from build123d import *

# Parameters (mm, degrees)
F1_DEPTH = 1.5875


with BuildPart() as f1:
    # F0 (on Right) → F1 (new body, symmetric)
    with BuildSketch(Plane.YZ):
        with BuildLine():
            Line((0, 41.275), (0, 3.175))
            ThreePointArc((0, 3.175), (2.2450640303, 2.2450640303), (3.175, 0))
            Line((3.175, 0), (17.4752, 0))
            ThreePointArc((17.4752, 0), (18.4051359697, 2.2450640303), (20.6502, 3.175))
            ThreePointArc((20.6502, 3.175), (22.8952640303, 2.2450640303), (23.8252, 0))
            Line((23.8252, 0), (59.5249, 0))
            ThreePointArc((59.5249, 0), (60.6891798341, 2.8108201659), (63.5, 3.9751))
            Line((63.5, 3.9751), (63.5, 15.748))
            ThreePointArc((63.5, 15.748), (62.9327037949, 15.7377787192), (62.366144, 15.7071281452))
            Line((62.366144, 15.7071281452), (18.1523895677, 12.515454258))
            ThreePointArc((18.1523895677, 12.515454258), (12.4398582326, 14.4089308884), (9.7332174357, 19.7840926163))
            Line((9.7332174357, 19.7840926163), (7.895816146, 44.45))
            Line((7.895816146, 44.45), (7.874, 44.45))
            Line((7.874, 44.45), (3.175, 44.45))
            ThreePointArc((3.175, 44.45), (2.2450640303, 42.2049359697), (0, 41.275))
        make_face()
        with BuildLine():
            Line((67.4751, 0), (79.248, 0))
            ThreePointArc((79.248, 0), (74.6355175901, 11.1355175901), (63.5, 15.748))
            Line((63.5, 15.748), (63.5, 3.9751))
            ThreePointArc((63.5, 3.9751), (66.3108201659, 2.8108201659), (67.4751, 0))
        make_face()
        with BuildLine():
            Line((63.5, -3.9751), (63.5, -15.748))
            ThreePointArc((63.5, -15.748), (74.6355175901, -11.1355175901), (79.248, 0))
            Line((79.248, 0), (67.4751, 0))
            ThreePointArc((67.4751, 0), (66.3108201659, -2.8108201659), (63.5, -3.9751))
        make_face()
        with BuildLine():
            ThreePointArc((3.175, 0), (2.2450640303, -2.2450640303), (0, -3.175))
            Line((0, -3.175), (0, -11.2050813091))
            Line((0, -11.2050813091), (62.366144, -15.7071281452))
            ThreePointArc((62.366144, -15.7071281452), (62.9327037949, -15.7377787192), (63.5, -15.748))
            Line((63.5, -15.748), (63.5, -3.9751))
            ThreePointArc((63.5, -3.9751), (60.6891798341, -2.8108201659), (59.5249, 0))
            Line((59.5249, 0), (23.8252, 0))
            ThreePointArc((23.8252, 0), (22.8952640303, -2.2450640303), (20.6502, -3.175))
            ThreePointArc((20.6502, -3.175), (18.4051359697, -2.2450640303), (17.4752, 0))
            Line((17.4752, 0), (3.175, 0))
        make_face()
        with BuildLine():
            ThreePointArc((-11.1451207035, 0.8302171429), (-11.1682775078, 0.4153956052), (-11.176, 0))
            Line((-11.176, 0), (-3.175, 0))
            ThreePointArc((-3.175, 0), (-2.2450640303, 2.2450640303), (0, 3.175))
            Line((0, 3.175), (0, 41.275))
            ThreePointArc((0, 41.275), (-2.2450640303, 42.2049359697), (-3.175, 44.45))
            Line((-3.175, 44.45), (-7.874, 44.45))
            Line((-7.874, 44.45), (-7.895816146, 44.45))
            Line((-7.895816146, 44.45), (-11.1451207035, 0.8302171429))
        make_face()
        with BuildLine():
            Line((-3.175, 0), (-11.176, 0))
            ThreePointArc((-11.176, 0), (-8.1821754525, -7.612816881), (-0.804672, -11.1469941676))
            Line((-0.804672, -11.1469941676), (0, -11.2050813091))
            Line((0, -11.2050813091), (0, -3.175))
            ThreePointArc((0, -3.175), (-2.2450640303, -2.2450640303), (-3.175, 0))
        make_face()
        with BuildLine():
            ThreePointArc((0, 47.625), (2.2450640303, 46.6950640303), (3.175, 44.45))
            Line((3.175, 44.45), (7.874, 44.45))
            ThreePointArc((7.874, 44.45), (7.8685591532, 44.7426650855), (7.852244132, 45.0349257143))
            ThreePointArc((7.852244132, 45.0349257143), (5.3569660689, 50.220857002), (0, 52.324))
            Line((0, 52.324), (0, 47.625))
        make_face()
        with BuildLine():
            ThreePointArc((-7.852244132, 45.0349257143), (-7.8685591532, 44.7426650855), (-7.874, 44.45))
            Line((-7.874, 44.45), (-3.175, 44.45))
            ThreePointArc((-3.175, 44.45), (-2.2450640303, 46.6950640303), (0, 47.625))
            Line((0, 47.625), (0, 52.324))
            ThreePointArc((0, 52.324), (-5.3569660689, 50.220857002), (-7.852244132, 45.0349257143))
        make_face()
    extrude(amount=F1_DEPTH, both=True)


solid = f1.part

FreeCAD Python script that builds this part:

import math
import FreeCAD as App
import Part
import Sketcher
Q = App.Units.Quantity

doc = App.newDocument("Part")
params = doc.addObject("Spreadsheet::Sheet", "Params")
for row, (alias, value) in enumerate([
    ("sketch1_radius", "0.62 in"),
    ("sketch1_radius2", "0.31 in"),
    ("sketch1_radius3", "0.44 in"),
    ("sketch1_radius4", "0.125 in"),
    ("pad1_length", "0.125 in"),
], start=1):
    params.set(f"A{row}", alias)
    params.set(f"B{row}", "=" + value)
    params.setAlias(f"B{row}", alias)

body = doc.addObject("PartDesign::Body", "Body")

sketch1 = doc.addObject("Sketcher::SketchObject", "Sketch")
body.addObject(sketch1)
sketch1.AttachmentSupport = (doc.YZ_Plane, [""])
sketch1.MapMode = "FlatFace"
sketch1.addGeometry([
    Part.LineSegment(App.Vector(0, -11.205081, 0), App.Vector(62.366144, -15.707128, 0)),
    Part.ArcOfCircle(Part.Circle(App.Vector(63.5, 0, 0), App.Vector(0, 0, 1), 15.748), math.radians(-94.128869), math.radians(-90)),
    Part.ArcOfCircle(Part.Circle(App.Vector(63.5, 0, 0), App.Vector(0, 0, 1), 15.748), math.radians(-90), math.radians(0)),
    Part.ArcOfCircle(Part.Circle(App.Vector(63.5, 0, 0), App.Vector(0, 0, 1), 15.748), math.radians(0), math.radians(90)),
    Part.ArcOfCircle(Part.Circle(App.Vector(63.5, 0, 0), App.Vector(0, 0, 1), 15.748), math.radians(90), math.radians(94.128869)),
    Part.LineSegment(App.Vector(62.366144, 15.707128, 0), App.Vector(18.15239, 12.515454, 0)),
    Part.ArcOfCircle(Part.Circle(App.Vector(17.585462, 20.369018, 0), App.Vector(0, 0, 1), 7.874), math.radians(-175.739818), math.radians(-85.871131)),
    Part.LineSegment(App.Vector(9.733217, 19.784093, 0), App.Vector(7.895816, 44.45, 0)),
    Part.LineSegment(App.Vector(7.895816, 44.45, 0), App.Vector(7.874, 44.45, 0)),
    Part.ArcOfCircle(Part.Circle(App.Vector(0, 44.45, 0), App.Vector(0, 0, 1), 7.874), math.radians(0), math.radians(4.260182)),
    Part.ArcOfCircle(Part.Circle(App.Vector(0, 44.45, 0), App.Vector(0, 0, 1), 7.874), math.radians(4.260182), math.radians(90)),
    Part.ArcOfCircle(Part.Circle(App.Vector(0, 44.45, 0), App.Vector(0, 0, 1), 7.874), math.radians(90), math.radians(175.739818)),
    Part.ArcOfCircle(Part.Circle(App.Vector(0, 44.45, 0), App.Vector(0, 0, 1), 7.874), math.radians(175.739818), math.radians(180)),
    Part.LineSegment(App.Vector(-7.874, 44.45, 0), App.Vector(-7.895816, 44.45, 0)),
    Part.LineSegment(App.Vector(-7.895816, 44.45, 0), App.Vector(-11.145121, 0.830217, 0)),
    Part.ArcOfCircle(Part.Circle(App.Vector(0, 0, 0), App.Vector(0, 0, 1), 11.176), math.radians(175.739818), math.radians(180)),
    Part.ArcOfCircle(Part.Circle(App.Vector(0, 0, 0), App.Vector(0, 0, 1), 11.176), math.radians(180), math.radians(265.871131)),
    Part.LineSegment(App.Vector(-0.804672, -11.146994, 0), App.Vector(0, -11.205081, 0)),
    Part.ArcOfCircle(Part.Circle(App.Vector(0, 0, 0), App.Vector(0, 0, 1), 3.175), math.radians(0), math.radians(90)),
    Part.ArcOfCircle(Part.Circle(App.Vector(0, 0, 0), App.Vector(0, 0, 1), 3.175), math.radians(-90), math.radians(0)),
    Part.ArcOfCircle(Part.Circle(App.Vector(0, 0, 0), App.Vector(0, 0, 1), 3.175), math.radians(180), math.radians(270)),
    Part.ArcOfCircle(Part.Circle(App.Vector(0, 0, 0), App.Vector(0, 0, 1), 3.175), math.radians(90), math.radians(180)),
    Part.ArcOfCircle(Part.Circle(App.Vector(0, 44.45, 0), App.Vector(0, 0, 1), 3.175), math.radians(0), math.radians(90)),
    Part.ArcOfCircle(Part.Circle(App.Vector(0, 44.45, 0), App.Vector(0, 0, 1), 3.175), math.radians(-90), math.radians(0)),
    Part.ArcOfCircle(Part.Circle(App.Vector(0, 44.45, 0), App.Vector(0, 0, 1), 3.175), math.radians(180), math.radians(270)),
    Part.ArcOfCircle(Part.Circle(App.Vector(0, 44.45, 0), App.Vector(0, 0, 1), 3.175), math.radians(90), math.radians(180)),
    Part.ArcOfCircle(Part.Circle(App.Vector(20.6502, 0, 0), App.Vector(0, 0, 1), 3.175), math.radians(90), math.radians(180)),
    Part.ArcOfCircle(Part.Circle(App.Vector(20.6502, 0, 0), App.Vector(0, 0, 1), 3.175), math.radians(0), math.radians(90)),
    Part.ArcOfCircle(Part.Circle(App.Vector(20.6502, 0, 0), App.Vector(0, 0, 1), 3.175), math.radians(-90), math.radians(0)),
    Part.ArcOfCircle(Part.Circle(App.Vector(20.6502, 0, 0), App.Vector(0, 0, 1), 3.175), math.radians(180), math.radians(270)),
    Part.ArcOfCircle(Part.Circle(App.Vector(63.5, 0, 0), App.Vector(0, 0, 1), 3.9751), math.radians(90), math.radians(180)),
    Part.ArcOfCircle(Part.Circle(App.Vector(63.5, 0, 0), App.Vector(0, 0, 1), 3.9751), math.radians(0), math.radians(90)),
    Part.ArcOfCircle(Part.Circle(App.Vector(63.5, 0, 0), App.Vector(0, 0, 1), 3.9751), math.radians(-90), math.radians(0)),
    Part.ArcOfCircle(Part.Circle(App.Vector(63.5, 0, 0), App.Vector(0, 0, 1), 3.9751), math.radians(180), math.radians(270)),
], False)
sketch1.addConstraint([
    Sketcher.Constraint("Tangent", 0, 2, 1, 1),
    Sketcher.Constraint("Tangent", 1, 2, 2, 1),
    Sketcher.Constraint("Tangent", 2, 2, 3, 1),
    Sketcher.Constraint("Tangent", 3, 2, 4, 1),
    Sketcher.Constraint("Tangent", 4, 2, 5, 1),
    Sketcher.Constraint("Tangent", 5, 2, 6, 2),
    Sketcher.Constraint("Tangent", 6, 1, 7, 1),
    Sketcher.Constraint("Coincident", 7, 2, 8, 1),
    Sketcher.Constraint("Coincident", 8, 2, 9, 1),
    Sketcher.Constraint("Tangent", 9, 2, 10, 1),
    Sketcher.Constraint("Tangent", 10, 2, 11, 1),
    Sketcher.Constraint("Tangent", 11, 2, 12, 1),
    Sketcher.Constraint("Coincident", 12, 2, 13, 1),
    Sketcher.Constraint("Coincident", 13, 2, 14, 1),
    Sketcher.Constraint("Tangent", 14, 2, 15, 1),
    Sketcher.Constraint("Tangent", 15, 2, 16, 1),
    Sketcher.Constraint("Tangent", 16, 2, 17, 1),
    Sketcher.Constraint("Coincident", 17, 2, 0, 1),
    Sketcher.Constraint("Tangent", 18, 1, 19, 2),
    Sketcher.Constraint("Tangent", 19, 1, 20, 2),
    Sketcher.Constraint("Tangent", 20, 1, 21, 2),
    Sketcher.Constraint("Tangent", 21, 1, 18, 2),
    Sketcher.Constraint("Tangent", 22, 1, 23, 2),
    Sketcher.Constraint("Tangent", 23, 1, 24, 2),
    Sketcher.Constraint("Tangent", 24, 1, 25, 2),
    Sketcher.Constraint("Tangent", 25, 1, 22, 2),
    Sketcher.Constraint("Tangent", 26, 1, 27, 2),
    Sketcher.Constraint("Tangent", 27, 1, 28, 2),
    Sketcher.Constraint("Tangent", 28, 1, 29, 2),
    Sketcher.Constraint("Tangent", 29, 1, 26, 2),
    Sketcher.Constraint("Tangent", 30, 1, 31, 2),
    Sketcher.Constraint("Tangent", 31, 1, 32, 2),
    Sketcher.Constraint("Tangent", 32, 1, 33, 2),
    Sketcher.Constraint("Tangent", 33, 1, 30, 2),
    Sketcher.Constraint("Horizontal", 8),
    Sketcher.Constraint("Horizontal", 13),
    Sketcher.Constraint("Coincident", 15, 3, -1, 1),
    Sketcher.Constraint("Coincident", 18, 3, -1, 1),
    Sketcher.Constraint("Coincident", 3, 3, 1, 3),
    Sketcher.Constraint("Coincident", 11, 3, 9, 3),
    Sketcher.Constraint("Coincident", 22, 3, 9, 3),
    Sketcher.Constraint("Coincident", 30, 3, 1, 3),
    Sketcher.Constraint("Equal", 3, 4),
    Sketcher.Constraint("Equal", 6, 9),
    Sketcher.Constraint("Equal", 11, 12),
    Sketcher.Constraint("Equal", 15, 16),
    Sketcher.Constraint("Equal", 18, 19),
    Sketcher.Constraint("Equal", 21, 22),
    Sketcher.Constraint("Equal", 22, 23),
    Sketcher.Constraint("Equal", 25, 26),
    Sketcher.Constraint("Equal", 26, 27),
    Sketcher.Constraint("Equal", 30, 31),
    Sketcher.Constraint("Symmetric", 9, 2, 11, 2, -2),
    Sketcher.Constraint("Symmetric", 7, 2, 13, 2, -2),
    Sketcher.Constraint("Symmetric", 1, 2, 3, 2, -1),
    Sketcher.Constraint("Symmetric", 26, 1, 28, 1, -1),
    Sketcher.Constraint("PointOnObject", 2, 2, -1),
    Sketcher.Constraint("PointOnObject", 10, 2, -2),
    Sketcher.Constraint("PointOnObject", 15, 2, -1),
    Sketcher.Constraint("PointOnObject", 17, 2, -2),
    Sketcher.Constraint("PointOnObject", 18, 1, -1),
    Sketcher.Constraint("PointOnObject", 19, 1, -2),
    Sketcher.Constraint("PointOnObject", 20, 1, -1),
    Sketcher.Constraint("PointOnObject", 21, 1, -2),
    Sketcher.Constraint("PointOnObject", 23, 1, -2),
    Sketcher.Constraint("PointOnObject", 25, 1, -2),
    Sketcher.Constraint("PointOnObject", 27, 1, -1),
    Sketcher.Constraint("PointOnObject", 29, 1, -1),
    Sketcher.Constraint("PointOnObject", 31, 1, -1),
    Sketcher.Constraint("PointOnObject", 33, 1, -1),
    Sketcher.Constraint("Parallel", 0, 17),
    Sketcher.Constraint("Horizontal", 25, 3, 7, 2),
    Sketcher.Constraint("Horizontal", 13, 2, 22, 1),
    Sketcher.Constraint("Horizontal", 22, 1, 24, 1),
    Sketcher.Constraint("Vertical", 33, 3, 1, 2),
    Sketcher.Constraint("Vertical", 0, 2, 4, 2),
    Sketcher.Constraint("Vertical", 29, 3, 26, 1),
    Sketcher.Constraint("Vertical", 3, 2, 30, 1),
    Sketcher.Constraint("Vertical", 30, 1, 32, 1),
    Sketcher.Constraint("Radius", 1, Q("0.62 in")),
    Sketcher.Constraint("Radius", 6, Q("0.31 in")),
    Sketcher.Constraint("Radius", 15, Q("0.44 in")),
    Sketcher.Constraint("Radius", 18, Q("0.125 in")),
    Sketcher.Constraint("DistanceX", -1, 1, 1, 3, Q("2.5 in")),
    Sketcher.Constraint("Radius", 30, Q("0.1565 in")),
    Sketcher.Constraint("DistanceY", -1, 1, 9, 3, Q("1.75 in")),
    Sketcher.Constraint("DistanceX", -1, 1, 26, 3, Q("0.813 in")),
    Sketcher.Constraint("Distance", 7, Q("24.734248 mm")),
    Sketcher.Constraint("Distance", 14, Q("43.740638 mm")),
    Sketcher.Constraint("DistanceX", -1, 1, 9, 2, Q("7.852244 mm")),
])
sketch1.setExpression("Constraints[79]", "Params.sketch1_radius")
sketch1.setExpression("Constraints[80]", "Params.sketch1_radius2")
sketch1.setExpression("Constraints[81]", "Params.sketch1_radius3")
sketch1.setExpression("Constraints[82]", "Params.sketch1_radius4")
pad1 = doc.addObject("PartDesign::Pad", "Pad")
body.addObject(pad1)
pad1.Profile = sketch1
pad1.setExpression("Length", "Params.pad1_length")
pad1.Midplane = True

doc.recompute()
